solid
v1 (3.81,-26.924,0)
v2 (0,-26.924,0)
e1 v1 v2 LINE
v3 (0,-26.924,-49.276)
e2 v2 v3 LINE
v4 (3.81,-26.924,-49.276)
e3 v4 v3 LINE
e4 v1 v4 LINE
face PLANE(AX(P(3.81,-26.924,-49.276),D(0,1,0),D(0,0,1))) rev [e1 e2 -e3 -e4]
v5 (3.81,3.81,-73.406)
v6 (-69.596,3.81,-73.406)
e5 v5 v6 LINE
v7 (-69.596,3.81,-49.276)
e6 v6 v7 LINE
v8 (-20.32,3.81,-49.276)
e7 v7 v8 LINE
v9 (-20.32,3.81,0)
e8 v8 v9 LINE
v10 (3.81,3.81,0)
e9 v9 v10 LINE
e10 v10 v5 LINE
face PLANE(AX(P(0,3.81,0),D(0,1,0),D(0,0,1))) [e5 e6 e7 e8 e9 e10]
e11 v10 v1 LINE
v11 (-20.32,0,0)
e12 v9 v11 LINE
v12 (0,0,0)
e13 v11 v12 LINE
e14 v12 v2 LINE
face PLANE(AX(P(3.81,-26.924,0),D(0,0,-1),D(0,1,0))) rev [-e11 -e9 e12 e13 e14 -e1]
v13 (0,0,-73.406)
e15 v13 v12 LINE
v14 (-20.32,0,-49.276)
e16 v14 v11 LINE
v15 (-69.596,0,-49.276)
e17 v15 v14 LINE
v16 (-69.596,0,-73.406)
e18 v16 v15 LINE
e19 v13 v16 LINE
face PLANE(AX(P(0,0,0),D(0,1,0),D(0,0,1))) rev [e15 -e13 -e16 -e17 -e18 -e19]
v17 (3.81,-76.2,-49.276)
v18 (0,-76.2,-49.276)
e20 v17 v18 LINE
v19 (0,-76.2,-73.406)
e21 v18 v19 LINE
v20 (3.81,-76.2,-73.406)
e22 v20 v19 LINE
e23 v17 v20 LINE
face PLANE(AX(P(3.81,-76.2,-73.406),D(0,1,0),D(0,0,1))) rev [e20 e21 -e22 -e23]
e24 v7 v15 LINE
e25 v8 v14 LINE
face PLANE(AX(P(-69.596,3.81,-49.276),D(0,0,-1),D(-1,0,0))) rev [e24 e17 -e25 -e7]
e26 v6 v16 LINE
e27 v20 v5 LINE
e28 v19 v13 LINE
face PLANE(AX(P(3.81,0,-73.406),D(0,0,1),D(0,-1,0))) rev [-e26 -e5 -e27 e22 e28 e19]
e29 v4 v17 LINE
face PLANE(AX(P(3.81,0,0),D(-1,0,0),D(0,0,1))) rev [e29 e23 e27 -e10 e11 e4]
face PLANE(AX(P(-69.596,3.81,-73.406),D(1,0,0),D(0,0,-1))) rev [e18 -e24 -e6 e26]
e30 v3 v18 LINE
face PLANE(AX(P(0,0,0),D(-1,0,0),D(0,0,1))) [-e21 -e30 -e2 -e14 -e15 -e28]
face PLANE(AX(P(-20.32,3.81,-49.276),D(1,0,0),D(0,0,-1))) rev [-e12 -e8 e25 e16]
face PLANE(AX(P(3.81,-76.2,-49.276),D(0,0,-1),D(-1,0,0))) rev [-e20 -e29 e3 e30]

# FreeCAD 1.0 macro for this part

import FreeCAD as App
import Part
import Sketcher

V = App.Vector
Q = App.Units.Quantity

doc = App.newDocument("Part")
body = doc.addObject("PartDesign::Body", "Body")

# Sketch on YZ plane
sketch1 = body.newObject("Sketcher::SketchObject", "Sketch")
sketch1.AttachmentSupport = (doc.getObject("YZ_Plane"), [""])
sketch1.MapMode = "FlatFace"
sketch1.addGeometry([
    Part.LineSegment(V(0, -73, 0), V(0, 0, 0)),  # 0
    Part.LineSegment(V(0, 0, 0), V(-27, 0, 0)),  # 1
    Part.LineSegment(V(-27, 0, 0), V(-27, -49, 0)),  # 2
    Part.LineSegment(V(-27, -49, 0), V(-76, -49, 0)),  # 3
    Part.LineSegment(V(-76, -49, 0), V(-76, -73, 0)),  # 4
    Part.LineSegment(V(-76, -73, 0), V(0, -73, 0)),  # 5
], False)
sketch1.addConstraint([
    Sketcher.Constraint("Coincident", 0, 2, 1, 1),
    Sketcher.Constraint("Coincident", 1, 2, 2, 1),
    Sketcher.Constraint("Coincident", 2, 2, 3, 1),
    Sketcher.Constraint("Coincident", 3, 2, 4, 1),
    Sketcher.Constraint("Coincident", 4, 2, 5, 1),
    Sketcher.Constraint("Coincident", 5, 2, 0, 1),
    Sketcher.Constraint("Vertical", 0),
    Sketcher.Constraint("Horizontal", 1),
    Sketcher.Constraint("Vertical", 2),
    Sketcher.Constraint("Horizontal", 3),
    Sketcher.Constraint("Vertical", 4),
    Sketcher.Constraint("Horizontal", 5),
    Sketcher.Constraint("Coincident", 0, 2, -1, 1),
    Sketcher.Constraint("Equal", 3, 2),
    Sketcher.Constraint("DistanceX", 5, 1, 5, 2, Q("3 in")),
    Sketcher.Constraint("DistanceX", 1, 2, 1, 1, Q("1.06 in")),
    Sketcher.Constraint("DistanceY", 0, 1, 0, 2, Q("2.89 in")),
])
pad1 = body.newObject("PartDesign::Pad", "Pad")
pad1.Profile = sketch1
pad1.Length = Q("0.15 in")

# Sketch on XZ plane
sketch2 = body.newObject("Sketcher::SketchObject", "Sketch001")
sketch2.AttachmentSupport = (doc.getObject("XZ_Plane"), [""])
sketch2.MapMode = "FlatFace"
sketch2.addGeometry([
    Part.LineSegment(V(4, -73, 0), V(-70, -73, 0)),  # 0
    Part.LineSegment(V(-70, -73, 0), V(-70, -49, 0)),  # 1
    Part.LineSegment(V(-70, -49, 0), V(-20, -49, 0)),  # 2
    Part.LineSegment(V(-20, -49, 0), V(-20, 0, 0)),  # 3
    Part.LineSegment(V(-20, 0, 0), V(4, 0, 0)),  # 4
    Part.LineSegment(V(4, 0, 0), V(4, -73, 0)),  # 5
], False)
sketch2.addConstraint([
    Sketcher.Constraint("Coincident", 0, 2, 1, 1),
    Sketcher.Constraint("Coincident", 1, 2, 2, 1),
    Sketcher.Constraint("Coincident", 2, 2, 3, 1),
    Sketcher.Constraint("Coincident", 3, 2, 4, 1),
    Sketcher.Constraint("Coincident", 4, 2, 5, 1),
    Sketcher.Constraint("Coincident", 5, 2, 0, 1),
    Sketcher.Constraint("Horizontal", 0),
    Sketcher.Constraint("Vertical", 1),
    Sketcher.Constraint("Horizontal", 2),
    Sketcher.Constraint("Vertical", 3),
    Sketcher.Constraint("Horizontal", 4),
    Sketcher.Constraint("Vertical", 5),
    Sketcher.Constraint("PointOnObject", 3, 2, -1),
    Sketcher.Constraint("Equal", 4, 1),
    Sketcher.Constraint("Equal", 2, 3),
    Sketcher.Constraint("DistanceX", 0, 2, 0, 1, Q("2.89 in")),
    Sketcher.Constraint("DistanceX", 2, 1, 2, 2, Q("1.94 in")),
    Sketcher.Constraint("DistanceX", 2, 2, -1, 1, Q("0.8 in")),
])
pad2 = body.newObject("PartDesign::Pad", "Pad001")
pad2.Profile = sketch2
pad2.Length = Q("0.15 in")
pad2.Reversed = True

doc.recompute()
